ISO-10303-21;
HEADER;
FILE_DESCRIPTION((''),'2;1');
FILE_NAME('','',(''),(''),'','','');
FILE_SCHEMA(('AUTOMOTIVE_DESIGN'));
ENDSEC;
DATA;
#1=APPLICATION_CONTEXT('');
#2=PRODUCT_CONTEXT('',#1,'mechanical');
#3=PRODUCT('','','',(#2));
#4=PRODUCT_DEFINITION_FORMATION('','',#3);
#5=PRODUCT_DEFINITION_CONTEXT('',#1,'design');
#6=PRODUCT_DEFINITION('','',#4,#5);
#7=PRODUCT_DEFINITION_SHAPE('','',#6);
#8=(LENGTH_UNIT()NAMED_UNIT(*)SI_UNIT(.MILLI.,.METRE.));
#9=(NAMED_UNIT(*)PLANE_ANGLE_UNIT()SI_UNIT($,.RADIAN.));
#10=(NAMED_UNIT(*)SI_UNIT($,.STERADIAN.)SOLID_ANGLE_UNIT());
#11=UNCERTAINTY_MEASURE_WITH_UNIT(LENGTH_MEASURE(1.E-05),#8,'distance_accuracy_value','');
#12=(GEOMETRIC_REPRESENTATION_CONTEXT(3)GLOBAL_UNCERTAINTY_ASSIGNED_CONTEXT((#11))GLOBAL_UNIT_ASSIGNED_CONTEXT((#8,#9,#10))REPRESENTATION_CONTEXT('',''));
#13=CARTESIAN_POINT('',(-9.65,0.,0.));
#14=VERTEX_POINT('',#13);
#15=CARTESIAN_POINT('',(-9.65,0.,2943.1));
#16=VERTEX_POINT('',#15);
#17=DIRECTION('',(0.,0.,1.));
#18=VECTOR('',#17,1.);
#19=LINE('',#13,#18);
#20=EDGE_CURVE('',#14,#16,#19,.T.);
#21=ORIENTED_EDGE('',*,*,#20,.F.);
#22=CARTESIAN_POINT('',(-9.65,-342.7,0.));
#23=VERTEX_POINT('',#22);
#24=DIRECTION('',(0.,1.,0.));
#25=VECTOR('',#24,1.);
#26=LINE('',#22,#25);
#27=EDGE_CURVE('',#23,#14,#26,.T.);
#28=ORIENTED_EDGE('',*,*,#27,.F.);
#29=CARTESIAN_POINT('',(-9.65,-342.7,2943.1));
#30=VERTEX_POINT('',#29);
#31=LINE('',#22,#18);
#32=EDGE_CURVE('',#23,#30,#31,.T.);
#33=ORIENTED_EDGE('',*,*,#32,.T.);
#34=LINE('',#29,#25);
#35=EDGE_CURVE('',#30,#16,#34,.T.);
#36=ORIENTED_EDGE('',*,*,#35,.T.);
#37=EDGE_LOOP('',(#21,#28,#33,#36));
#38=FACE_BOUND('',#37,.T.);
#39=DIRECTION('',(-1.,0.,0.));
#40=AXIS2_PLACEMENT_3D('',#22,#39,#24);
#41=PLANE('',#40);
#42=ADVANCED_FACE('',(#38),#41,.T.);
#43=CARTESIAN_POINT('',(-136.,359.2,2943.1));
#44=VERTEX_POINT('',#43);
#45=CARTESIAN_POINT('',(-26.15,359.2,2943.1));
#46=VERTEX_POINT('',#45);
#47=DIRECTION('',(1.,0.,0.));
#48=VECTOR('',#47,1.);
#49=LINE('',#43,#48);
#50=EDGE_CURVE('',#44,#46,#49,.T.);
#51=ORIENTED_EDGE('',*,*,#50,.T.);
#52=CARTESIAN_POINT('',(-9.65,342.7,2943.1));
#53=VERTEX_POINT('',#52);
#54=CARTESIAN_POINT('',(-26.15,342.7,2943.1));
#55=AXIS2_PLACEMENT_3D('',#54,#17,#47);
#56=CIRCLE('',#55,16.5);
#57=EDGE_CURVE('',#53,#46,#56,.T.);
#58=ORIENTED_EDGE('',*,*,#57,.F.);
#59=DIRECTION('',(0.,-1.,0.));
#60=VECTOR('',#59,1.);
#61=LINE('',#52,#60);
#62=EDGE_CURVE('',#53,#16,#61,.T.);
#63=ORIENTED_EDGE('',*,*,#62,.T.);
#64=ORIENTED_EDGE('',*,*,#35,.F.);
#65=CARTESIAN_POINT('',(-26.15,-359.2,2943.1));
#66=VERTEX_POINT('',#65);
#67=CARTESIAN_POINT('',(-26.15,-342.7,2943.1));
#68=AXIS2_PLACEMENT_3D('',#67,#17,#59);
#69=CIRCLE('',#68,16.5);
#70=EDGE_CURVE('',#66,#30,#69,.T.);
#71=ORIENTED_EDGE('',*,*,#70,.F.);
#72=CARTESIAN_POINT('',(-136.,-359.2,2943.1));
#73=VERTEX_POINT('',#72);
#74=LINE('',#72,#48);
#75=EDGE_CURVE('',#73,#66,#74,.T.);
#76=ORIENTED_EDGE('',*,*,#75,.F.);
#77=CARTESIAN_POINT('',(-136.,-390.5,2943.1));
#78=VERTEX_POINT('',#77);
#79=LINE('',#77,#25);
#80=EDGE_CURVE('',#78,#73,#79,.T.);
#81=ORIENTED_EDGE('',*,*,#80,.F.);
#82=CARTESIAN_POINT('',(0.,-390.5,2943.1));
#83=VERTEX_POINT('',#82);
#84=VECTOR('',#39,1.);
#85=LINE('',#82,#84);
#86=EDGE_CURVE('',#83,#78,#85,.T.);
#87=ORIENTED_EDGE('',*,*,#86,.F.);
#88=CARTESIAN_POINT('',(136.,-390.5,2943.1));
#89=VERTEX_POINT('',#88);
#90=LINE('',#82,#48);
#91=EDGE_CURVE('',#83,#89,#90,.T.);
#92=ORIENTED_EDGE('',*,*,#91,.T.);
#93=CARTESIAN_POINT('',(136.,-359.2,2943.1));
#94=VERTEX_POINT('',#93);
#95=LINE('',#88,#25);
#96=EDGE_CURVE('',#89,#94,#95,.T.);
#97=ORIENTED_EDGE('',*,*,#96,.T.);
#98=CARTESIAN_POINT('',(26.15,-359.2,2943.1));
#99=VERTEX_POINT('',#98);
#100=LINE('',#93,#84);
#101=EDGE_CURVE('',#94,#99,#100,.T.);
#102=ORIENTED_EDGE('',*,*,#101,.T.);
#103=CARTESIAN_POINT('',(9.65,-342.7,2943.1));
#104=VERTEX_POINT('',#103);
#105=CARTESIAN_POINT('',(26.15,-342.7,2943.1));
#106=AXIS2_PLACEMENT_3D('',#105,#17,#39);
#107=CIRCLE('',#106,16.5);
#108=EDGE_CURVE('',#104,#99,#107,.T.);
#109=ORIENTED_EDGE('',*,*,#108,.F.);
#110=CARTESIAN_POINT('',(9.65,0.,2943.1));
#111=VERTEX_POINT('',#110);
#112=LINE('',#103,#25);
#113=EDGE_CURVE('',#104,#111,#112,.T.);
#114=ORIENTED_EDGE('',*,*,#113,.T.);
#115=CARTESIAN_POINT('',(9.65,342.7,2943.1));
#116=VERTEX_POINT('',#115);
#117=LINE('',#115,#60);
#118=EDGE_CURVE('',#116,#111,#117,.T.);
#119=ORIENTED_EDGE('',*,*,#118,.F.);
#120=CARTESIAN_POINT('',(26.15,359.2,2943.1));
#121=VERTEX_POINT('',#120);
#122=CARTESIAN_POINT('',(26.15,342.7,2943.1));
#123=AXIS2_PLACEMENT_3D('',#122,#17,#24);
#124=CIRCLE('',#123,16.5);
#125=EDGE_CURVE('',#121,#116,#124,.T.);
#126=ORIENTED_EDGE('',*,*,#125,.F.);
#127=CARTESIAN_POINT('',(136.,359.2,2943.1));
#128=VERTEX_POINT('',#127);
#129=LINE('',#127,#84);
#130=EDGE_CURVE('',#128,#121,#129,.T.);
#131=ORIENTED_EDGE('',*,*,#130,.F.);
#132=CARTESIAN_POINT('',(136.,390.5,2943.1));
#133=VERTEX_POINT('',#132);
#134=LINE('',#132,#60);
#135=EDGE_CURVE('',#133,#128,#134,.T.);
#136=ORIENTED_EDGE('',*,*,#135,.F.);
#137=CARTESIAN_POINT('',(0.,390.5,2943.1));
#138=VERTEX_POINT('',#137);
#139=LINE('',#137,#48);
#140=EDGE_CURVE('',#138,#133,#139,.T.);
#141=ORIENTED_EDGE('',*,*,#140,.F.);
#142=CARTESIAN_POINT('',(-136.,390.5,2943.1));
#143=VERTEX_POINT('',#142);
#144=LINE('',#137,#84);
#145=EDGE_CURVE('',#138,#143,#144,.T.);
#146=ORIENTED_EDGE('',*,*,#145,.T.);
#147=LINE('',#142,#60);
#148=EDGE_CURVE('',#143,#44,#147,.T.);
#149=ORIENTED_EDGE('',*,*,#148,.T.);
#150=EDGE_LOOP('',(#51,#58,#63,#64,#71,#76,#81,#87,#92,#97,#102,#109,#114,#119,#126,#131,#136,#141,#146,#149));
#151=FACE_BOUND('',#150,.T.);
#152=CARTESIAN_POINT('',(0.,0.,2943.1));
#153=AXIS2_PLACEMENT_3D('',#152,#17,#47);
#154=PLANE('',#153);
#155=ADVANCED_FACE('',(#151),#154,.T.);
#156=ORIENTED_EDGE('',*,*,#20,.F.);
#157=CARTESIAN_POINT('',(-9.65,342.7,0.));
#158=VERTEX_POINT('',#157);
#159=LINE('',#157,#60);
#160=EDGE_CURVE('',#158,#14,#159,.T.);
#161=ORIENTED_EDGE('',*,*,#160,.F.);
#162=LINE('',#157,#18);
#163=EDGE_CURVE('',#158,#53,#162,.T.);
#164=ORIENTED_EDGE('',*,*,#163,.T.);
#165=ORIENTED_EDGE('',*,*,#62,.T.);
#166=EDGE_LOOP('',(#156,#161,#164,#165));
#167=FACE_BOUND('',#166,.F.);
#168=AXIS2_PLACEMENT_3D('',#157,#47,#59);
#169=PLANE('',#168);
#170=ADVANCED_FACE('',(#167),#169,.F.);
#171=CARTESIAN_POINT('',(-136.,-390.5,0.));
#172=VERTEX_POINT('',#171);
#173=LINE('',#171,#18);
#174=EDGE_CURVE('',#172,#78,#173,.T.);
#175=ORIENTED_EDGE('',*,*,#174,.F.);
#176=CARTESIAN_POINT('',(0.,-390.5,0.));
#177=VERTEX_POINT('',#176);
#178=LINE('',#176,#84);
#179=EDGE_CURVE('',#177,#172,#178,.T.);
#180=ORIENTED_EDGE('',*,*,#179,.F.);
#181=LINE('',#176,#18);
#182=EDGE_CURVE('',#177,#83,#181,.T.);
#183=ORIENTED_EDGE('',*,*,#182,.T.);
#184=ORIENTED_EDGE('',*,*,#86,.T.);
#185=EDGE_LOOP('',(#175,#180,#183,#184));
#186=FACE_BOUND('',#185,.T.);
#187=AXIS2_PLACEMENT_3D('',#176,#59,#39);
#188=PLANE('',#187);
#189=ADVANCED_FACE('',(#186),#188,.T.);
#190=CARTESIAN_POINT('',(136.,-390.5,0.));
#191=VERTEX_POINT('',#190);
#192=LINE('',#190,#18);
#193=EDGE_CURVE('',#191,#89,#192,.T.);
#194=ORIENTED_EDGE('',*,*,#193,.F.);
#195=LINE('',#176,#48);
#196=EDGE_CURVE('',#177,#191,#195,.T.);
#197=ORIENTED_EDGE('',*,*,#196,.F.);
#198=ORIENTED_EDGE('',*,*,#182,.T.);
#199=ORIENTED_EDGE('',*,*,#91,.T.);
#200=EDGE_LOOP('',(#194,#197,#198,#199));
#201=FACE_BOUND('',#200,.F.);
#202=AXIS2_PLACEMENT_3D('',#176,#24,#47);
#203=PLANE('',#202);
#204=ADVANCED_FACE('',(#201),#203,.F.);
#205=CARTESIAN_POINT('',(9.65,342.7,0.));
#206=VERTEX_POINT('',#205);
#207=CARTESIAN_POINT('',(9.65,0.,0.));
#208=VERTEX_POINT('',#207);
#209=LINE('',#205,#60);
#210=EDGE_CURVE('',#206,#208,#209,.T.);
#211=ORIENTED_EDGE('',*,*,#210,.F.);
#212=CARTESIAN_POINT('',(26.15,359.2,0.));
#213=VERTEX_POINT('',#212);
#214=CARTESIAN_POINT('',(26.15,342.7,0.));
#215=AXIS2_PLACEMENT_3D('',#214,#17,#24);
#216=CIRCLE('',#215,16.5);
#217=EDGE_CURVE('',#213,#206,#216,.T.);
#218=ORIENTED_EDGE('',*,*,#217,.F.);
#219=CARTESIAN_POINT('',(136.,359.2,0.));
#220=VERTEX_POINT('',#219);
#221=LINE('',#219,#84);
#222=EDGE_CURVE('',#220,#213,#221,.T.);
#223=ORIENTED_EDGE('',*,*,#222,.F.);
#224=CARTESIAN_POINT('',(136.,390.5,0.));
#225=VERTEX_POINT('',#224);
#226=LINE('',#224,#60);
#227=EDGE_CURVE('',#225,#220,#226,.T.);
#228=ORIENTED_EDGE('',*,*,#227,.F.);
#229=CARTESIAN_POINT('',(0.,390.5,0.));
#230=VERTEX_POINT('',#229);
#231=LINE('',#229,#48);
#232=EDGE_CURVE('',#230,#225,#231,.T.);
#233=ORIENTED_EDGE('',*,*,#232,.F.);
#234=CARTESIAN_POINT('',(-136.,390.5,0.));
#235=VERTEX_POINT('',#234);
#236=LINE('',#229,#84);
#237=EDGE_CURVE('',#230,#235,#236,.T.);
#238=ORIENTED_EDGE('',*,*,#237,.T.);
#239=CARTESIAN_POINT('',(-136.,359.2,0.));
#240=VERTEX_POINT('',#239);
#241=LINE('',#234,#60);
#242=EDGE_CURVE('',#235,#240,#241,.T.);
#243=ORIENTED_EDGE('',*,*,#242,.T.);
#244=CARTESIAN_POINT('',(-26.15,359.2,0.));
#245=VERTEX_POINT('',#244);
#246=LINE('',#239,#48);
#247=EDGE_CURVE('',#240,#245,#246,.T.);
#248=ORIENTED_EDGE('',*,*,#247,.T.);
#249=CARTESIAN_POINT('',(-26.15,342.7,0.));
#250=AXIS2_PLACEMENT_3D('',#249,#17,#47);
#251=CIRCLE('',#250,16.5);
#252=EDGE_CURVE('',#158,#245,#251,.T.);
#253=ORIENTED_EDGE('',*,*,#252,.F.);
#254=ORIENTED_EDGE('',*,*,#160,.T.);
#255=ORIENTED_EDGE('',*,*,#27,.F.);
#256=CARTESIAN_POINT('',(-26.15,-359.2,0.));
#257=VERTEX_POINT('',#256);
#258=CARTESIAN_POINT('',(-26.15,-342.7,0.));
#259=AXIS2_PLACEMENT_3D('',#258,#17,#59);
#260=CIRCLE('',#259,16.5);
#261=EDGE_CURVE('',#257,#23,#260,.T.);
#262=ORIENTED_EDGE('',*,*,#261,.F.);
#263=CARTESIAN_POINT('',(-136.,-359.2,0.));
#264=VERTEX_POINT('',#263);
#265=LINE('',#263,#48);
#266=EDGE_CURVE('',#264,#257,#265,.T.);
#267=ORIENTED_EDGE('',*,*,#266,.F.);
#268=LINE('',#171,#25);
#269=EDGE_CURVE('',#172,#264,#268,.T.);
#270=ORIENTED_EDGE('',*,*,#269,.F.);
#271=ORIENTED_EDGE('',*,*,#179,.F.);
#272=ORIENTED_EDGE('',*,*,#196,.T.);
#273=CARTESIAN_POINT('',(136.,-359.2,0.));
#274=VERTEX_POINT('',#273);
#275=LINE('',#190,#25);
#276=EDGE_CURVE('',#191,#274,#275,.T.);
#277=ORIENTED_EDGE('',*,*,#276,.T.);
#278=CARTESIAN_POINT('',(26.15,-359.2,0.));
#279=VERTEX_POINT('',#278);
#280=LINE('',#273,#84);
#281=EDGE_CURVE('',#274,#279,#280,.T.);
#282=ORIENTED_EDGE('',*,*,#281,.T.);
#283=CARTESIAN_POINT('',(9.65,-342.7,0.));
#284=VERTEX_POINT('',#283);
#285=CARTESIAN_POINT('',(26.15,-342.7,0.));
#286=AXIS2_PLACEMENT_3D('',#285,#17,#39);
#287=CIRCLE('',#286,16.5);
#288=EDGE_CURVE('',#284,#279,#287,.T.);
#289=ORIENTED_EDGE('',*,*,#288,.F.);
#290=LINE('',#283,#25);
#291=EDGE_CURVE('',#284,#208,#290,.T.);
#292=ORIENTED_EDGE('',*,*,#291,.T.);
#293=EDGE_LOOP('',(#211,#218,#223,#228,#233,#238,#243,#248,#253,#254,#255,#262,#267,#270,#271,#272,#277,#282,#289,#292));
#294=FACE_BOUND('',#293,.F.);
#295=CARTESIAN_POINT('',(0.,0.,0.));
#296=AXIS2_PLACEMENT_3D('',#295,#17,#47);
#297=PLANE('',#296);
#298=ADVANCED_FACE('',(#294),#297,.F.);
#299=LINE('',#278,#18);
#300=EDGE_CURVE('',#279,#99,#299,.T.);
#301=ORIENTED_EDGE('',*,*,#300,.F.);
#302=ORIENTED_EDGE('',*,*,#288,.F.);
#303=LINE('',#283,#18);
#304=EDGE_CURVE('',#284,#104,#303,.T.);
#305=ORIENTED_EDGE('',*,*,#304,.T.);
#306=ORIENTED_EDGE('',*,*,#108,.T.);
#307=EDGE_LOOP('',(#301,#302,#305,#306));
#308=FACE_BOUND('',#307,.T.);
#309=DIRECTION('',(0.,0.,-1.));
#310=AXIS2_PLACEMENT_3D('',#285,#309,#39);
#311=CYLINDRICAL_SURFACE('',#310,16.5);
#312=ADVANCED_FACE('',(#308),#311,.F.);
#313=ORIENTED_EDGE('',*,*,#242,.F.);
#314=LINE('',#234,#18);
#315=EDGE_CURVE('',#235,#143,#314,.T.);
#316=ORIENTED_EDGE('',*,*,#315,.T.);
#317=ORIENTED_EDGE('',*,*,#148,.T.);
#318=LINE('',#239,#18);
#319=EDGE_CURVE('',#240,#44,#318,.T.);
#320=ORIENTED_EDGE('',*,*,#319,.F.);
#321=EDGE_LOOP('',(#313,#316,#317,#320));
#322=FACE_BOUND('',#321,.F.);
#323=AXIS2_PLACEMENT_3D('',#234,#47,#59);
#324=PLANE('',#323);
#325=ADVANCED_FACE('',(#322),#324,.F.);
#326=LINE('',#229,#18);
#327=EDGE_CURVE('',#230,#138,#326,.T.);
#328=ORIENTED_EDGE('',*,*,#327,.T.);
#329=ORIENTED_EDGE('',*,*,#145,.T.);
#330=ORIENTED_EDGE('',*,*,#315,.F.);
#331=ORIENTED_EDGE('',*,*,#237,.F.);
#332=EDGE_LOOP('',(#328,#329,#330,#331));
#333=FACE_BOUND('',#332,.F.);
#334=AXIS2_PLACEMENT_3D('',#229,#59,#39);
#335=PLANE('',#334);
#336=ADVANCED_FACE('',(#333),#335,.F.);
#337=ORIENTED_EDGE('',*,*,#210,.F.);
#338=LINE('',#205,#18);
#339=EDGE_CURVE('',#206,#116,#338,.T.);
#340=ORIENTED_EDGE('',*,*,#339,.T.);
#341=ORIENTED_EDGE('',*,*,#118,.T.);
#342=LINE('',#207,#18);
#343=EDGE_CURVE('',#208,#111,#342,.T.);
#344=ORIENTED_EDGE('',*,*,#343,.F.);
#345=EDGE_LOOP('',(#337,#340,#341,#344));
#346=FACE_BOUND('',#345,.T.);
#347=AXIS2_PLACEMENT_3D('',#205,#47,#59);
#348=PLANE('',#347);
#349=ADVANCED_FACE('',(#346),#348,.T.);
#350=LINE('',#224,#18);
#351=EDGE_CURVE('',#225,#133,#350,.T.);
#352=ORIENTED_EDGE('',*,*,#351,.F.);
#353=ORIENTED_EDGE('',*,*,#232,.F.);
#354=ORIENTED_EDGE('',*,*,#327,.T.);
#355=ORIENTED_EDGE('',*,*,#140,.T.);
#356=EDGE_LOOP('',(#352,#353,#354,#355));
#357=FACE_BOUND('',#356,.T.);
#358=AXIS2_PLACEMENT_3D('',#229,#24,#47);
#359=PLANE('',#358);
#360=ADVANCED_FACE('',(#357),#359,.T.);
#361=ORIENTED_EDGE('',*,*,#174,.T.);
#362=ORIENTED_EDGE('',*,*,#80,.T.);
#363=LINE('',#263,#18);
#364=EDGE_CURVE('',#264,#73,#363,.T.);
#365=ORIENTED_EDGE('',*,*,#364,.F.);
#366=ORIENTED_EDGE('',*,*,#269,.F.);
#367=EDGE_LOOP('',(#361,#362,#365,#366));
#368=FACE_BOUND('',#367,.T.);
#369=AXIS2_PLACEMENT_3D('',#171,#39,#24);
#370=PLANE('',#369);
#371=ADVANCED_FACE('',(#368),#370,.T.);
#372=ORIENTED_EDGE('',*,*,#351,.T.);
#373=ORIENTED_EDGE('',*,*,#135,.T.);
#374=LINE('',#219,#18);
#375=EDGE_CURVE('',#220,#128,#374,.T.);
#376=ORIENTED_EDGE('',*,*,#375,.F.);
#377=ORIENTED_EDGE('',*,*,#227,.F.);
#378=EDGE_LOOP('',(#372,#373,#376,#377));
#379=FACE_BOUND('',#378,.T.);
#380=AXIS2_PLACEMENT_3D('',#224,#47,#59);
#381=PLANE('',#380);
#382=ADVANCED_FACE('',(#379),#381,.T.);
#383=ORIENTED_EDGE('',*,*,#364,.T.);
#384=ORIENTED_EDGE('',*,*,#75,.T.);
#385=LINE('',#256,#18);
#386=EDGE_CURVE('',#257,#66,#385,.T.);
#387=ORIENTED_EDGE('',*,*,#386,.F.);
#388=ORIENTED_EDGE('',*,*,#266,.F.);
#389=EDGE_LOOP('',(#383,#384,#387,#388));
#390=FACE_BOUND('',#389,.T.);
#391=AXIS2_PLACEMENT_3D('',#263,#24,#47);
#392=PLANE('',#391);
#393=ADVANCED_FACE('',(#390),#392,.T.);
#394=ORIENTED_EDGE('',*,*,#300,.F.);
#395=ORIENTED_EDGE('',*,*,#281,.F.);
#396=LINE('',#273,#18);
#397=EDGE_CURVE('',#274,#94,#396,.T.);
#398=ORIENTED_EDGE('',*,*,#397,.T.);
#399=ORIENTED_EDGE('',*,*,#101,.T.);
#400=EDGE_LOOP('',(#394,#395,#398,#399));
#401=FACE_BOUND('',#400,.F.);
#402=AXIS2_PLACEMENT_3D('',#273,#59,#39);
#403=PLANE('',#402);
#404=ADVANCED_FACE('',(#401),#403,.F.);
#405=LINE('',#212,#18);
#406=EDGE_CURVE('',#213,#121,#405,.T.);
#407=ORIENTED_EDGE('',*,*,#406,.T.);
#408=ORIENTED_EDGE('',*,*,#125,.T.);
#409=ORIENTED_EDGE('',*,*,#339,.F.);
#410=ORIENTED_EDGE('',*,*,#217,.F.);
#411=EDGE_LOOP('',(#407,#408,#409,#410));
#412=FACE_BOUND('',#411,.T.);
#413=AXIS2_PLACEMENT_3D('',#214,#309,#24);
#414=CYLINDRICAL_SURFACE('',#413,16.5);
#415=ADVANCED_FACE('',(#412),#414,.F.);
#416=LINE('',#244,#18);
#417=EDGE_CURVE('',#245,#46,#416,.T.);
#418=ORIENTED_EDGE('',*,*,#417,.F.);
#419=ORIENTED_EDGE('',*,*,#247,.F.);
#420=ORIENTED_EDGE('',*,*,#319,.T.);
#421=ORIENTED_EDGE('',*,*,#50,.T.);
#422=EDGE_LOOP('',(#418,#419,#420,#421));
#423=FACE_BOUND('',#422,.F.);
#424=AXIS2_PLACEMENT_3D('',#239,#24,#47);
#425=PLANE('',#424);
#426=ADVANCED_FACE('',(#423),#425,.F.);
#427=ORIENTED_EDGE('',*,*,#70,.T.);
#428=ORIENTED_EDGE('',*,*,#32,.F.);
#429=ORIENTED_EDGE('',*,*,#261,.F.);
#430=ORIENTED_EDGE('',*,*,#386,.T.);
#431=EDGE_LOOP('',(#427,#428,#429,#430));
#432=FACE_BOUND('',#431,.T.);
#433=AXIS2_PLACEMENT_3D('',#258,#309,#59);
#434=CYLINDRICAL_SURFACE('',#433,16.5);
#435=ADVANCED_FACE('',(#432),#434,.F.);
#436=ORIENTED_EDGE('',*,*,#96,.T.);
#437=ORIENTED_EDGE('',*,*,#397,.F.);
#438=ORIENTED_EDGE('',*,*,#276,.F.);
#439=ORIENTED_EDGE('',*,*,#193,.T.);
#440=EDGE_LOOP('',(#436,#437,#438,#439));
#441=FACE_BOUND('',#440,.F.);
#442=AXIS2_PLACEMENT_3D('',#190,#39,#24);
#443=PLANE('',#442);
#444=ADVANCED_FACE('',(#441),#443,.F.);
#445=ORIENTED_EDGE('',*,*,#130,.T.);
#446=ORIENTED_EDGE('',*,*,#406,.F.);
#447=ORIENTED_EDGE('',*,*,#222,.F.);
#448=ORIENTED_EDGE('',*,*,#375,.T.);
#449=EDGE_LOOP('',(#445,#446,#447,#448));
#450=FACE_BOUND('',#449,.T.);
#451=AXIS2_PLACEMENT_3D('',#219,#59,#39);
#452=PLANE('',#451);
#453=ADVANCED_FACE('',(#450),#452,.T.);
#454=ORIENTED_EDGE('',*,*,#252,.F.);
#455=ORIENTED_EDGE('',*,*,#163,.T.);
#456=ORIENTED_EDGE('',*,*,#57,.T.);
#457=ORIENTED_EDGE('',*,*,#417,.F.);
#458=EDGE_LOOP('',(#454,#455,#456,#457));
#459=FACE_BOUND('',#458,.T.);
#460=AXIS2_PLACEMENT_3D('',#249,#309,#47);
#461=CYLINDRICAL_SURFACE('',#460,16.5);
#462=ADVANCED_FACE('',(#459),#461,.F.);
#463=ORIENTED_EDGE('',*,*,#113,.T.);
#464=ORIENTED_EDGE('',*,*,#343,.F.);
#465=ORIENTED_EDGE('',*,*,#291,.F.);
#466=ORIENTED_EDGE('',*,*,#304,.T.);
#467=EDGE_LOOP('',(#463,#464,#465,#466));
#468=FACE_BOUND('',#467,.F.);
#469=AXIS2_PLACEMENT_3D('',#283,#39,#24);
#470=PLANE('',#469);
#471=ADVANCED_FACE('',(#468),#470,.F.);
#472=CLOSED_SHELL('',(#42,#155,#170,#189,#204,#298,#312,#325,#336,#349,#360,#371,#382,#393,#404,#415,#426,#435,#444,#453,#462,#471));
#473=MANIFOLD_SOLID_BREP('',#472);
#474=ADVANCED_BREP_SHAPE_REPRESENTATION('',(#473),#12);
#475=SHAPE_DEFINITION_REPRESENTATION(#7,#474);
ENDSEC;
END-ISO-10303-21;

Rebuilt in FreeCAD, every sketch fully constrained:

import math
import FreeCAD as App
import Part
import Sketcher

V = App.Vector

doc = App.newDocument("Part")
body = doc.addObject("PartDesign::Body", "Body")

# Sketch on XY plane
sketch1 = body.newObject("Sketcher::SketchObject", "Sketch")
sketch1.AttachmentSupport = (doc.getObject("XY_Plane"), [""])
sketch1.MapMode = "FlatFace"
sketch1.addGeometry(Part.LineSegment(V(-136, -359, 0), V(-136, -390, 0)), False)
sketch1.addGeometry(Part.LineSegment(V(-136, -390, 0), V(136, -390, 0)), False)
sketch1.addGeometry(Part.LineSegment(V(136, -390, 0), V(136, -359, 0)), False)
sketch1.addGeometry(Part.LineSegment(V(136, -359, 0), V(26, -359, 0)), False)
sketch1.addGeometry(Part.ArcOfCircle(Part.Circle(V(26, -343, 0), V(0, 0, 1), 16), math.radians(180), math.radians(270)), False)
sketch1.addGeometry(Part.LineSegment(V(10, -343, 0), V(10, 343, 0)), False)
sketch1.addGeometry(Part.ArcOfCircle(Part.Circle(V(26, 343, 0), V(0, 0, 1), 16), math.radians(90), math.radians(180)), False)
sketch1.addGeometry(Part.LineSegment(V(26, 359, 0), V(136, 359, 0)), False)
sketch1.addGeometry(Part.LineSegment(V(136, 359, 0), V(136, 390, 0)), False)
sketch1.addGeometry(Part.LineSegment(V(136, 390, 0), V(-136, 390, 0)), False)
sketch1.addGeometry(Part.LineSegment(V(-136, 390, 0), V(-136, 359, 0)), False)
sketch1.addGeometry(Part.LineSegment(V(-136, 359, 0), V(-26, 359, 0)), False)
sketch1.addGeometry(Part.ArcOfCircle(Part.Circle(V(-26, 343, 0), V(0, 0, 1), 16), math.radians(0), math.radians(90)), False)
sketch1.addGeometry(Part.LineSegment(V(-10, 343, 0), V(-10, -343, 0)), False)
sketch1.addGeometry(Part.ArcOfCircle(Part.Circle(V(-26, -343, 0), V(0, 0, 1), 16), math.radians(-90), math.radians(0)), False)
sketch1.addGeometry(Part.LineSegment(V(-26, -359, 0), V(-136, -359, 0)), False)
sketch1.addConstraint(Sketcher.Constraint("Coincident", 0, 2, 1, 1))
sketch1.addConstraint(Sketcher.Constraint("Coincident", 1, 2, 2, 1))
sketch1.addConstraint(Sketcher.Constraint("Coincident", 2, 2, 3, 1))
sketch1.addConstraint(Sketcher.Constraint("Tangent", 3, 2, 4, 2))
sketch1.addConstraint(Sketcher.Constraint("Tangent", 4, 1, 5, 1))
sketch1.addConstraint(Sketcher.Constraint("Tangent", 5, 2, 6, 2))
sketch1.addConstraint(Sketcher.Constraint("Tangent", 6, 1, 7, 1))
sketch1.addConstraint(Sketcher.Constraint("Coincident", 7, 2, 8, 1))
sketch1.addConstraint(Sketcher.Constraint("Coincident", 8, 2, 9, 1))
sketch1.addConstraint(Sketcher.Constraint("Coincident", 9, 2, 10, 1))
sketch1.addConstraint(Sketcher.Constraint("Coincident", 10, 2, 11, 1))
sketch1.addConstraint(Sketcher.Constraint("Tangent", 11, 2, 12, 2))
sketch1.addConstraint(Sketcher.Constraint("Tangent", 12, 1, 13, 1))
sketch1.addConstraint(Sketcher.Constraint("Tangent", 13, 2, 14, 2))
sketch1.addConstraint(Sketcher.Constraint("Tangent", 14, 1, 15, 1))
sketch1.addConstraint(Sketcher.Constraint("Coincident", 15, 2, 0, 1))
sketch1.addConstraint(Sketcher.Constraint("Vertical", 0))
sketch1.addConstraint(Sketcher.Constraint("Horizontal", 1))
sketch1.addConstraint(Sketcher.Constraint("Vertical", 2))
sketch1.addConstraint(Sketcher.Constraint("Horizontal", 3))
sketch1.addConstraint(Sketcher.Constraint("Vertical", 5))
sketch1.addConstraint(Sketcher.Constraint("Horizontal", 7))
sketch1.addConstraint(Sketcher.Constraint("Vertical", 8))
sketch1.addConstraint(Sketcher.Constraint("Horizontal", 9))
sketch1.addConstraint(Sketcher.Constraint("Vertical", 10))
sketch1.addConstraint(Sketcher.Constraint("Horizontal", 11))
sketch1.addConstraint(Sketcher.Constraint("Vertical", 13))
sketch1.addConstraint(Sketcher.Constraint("Horizontal", 15))
sketch1.addConstraint(Sketcher.Constraint("Equal", 4, 6))
sketch1.addConstraint(Sketcher.Constraint("Equal", 6, 12))
sketch1.addConstraint(Sketcher.Constraint("Equal", 12, 14))
sketch1.addConstraint(Sketcher.Constraint("Symmetric", 4, 3, 12, 3, -1, 1))
sketch1.addConstraint(Sketcher.Constraint("Symmetric", 0, 2, 8, 2, -1, 1))
sketch1.addConstraint(Sketcher.Constraint("Symmetric", 7, 2, 10, 2, -2))
sketch1.addConstraint(Sketcher.Constraint("Symmetric", 2, 2, 15, 2, -2))
sketch1.addConstraint(Sketcher.Constraint("Radius", 4, 16.5))
sketch1.addConstraint(Sketcher.Constraint("DistanceY", 0, 2, 0, 1, 31.3))
sketch1.addConstraint(Sketcher.Constraint("DistanceX", 0, 2, -1, 1, 136.0))
sketch1.addConstraint(Sketcher.Constraint("DistanceY", 0, 2, -1, 1, 390.5))
sketch1.addConstraint(Sketcher.Constraint("DistanceX", -1, 1, 4, 1, 9.65))
pad1 = body.newObject("PartDesign::Pad", "Pad")
pad1.Profile = sketch1
pad1.Length = 2943.1

doc.recompute()
